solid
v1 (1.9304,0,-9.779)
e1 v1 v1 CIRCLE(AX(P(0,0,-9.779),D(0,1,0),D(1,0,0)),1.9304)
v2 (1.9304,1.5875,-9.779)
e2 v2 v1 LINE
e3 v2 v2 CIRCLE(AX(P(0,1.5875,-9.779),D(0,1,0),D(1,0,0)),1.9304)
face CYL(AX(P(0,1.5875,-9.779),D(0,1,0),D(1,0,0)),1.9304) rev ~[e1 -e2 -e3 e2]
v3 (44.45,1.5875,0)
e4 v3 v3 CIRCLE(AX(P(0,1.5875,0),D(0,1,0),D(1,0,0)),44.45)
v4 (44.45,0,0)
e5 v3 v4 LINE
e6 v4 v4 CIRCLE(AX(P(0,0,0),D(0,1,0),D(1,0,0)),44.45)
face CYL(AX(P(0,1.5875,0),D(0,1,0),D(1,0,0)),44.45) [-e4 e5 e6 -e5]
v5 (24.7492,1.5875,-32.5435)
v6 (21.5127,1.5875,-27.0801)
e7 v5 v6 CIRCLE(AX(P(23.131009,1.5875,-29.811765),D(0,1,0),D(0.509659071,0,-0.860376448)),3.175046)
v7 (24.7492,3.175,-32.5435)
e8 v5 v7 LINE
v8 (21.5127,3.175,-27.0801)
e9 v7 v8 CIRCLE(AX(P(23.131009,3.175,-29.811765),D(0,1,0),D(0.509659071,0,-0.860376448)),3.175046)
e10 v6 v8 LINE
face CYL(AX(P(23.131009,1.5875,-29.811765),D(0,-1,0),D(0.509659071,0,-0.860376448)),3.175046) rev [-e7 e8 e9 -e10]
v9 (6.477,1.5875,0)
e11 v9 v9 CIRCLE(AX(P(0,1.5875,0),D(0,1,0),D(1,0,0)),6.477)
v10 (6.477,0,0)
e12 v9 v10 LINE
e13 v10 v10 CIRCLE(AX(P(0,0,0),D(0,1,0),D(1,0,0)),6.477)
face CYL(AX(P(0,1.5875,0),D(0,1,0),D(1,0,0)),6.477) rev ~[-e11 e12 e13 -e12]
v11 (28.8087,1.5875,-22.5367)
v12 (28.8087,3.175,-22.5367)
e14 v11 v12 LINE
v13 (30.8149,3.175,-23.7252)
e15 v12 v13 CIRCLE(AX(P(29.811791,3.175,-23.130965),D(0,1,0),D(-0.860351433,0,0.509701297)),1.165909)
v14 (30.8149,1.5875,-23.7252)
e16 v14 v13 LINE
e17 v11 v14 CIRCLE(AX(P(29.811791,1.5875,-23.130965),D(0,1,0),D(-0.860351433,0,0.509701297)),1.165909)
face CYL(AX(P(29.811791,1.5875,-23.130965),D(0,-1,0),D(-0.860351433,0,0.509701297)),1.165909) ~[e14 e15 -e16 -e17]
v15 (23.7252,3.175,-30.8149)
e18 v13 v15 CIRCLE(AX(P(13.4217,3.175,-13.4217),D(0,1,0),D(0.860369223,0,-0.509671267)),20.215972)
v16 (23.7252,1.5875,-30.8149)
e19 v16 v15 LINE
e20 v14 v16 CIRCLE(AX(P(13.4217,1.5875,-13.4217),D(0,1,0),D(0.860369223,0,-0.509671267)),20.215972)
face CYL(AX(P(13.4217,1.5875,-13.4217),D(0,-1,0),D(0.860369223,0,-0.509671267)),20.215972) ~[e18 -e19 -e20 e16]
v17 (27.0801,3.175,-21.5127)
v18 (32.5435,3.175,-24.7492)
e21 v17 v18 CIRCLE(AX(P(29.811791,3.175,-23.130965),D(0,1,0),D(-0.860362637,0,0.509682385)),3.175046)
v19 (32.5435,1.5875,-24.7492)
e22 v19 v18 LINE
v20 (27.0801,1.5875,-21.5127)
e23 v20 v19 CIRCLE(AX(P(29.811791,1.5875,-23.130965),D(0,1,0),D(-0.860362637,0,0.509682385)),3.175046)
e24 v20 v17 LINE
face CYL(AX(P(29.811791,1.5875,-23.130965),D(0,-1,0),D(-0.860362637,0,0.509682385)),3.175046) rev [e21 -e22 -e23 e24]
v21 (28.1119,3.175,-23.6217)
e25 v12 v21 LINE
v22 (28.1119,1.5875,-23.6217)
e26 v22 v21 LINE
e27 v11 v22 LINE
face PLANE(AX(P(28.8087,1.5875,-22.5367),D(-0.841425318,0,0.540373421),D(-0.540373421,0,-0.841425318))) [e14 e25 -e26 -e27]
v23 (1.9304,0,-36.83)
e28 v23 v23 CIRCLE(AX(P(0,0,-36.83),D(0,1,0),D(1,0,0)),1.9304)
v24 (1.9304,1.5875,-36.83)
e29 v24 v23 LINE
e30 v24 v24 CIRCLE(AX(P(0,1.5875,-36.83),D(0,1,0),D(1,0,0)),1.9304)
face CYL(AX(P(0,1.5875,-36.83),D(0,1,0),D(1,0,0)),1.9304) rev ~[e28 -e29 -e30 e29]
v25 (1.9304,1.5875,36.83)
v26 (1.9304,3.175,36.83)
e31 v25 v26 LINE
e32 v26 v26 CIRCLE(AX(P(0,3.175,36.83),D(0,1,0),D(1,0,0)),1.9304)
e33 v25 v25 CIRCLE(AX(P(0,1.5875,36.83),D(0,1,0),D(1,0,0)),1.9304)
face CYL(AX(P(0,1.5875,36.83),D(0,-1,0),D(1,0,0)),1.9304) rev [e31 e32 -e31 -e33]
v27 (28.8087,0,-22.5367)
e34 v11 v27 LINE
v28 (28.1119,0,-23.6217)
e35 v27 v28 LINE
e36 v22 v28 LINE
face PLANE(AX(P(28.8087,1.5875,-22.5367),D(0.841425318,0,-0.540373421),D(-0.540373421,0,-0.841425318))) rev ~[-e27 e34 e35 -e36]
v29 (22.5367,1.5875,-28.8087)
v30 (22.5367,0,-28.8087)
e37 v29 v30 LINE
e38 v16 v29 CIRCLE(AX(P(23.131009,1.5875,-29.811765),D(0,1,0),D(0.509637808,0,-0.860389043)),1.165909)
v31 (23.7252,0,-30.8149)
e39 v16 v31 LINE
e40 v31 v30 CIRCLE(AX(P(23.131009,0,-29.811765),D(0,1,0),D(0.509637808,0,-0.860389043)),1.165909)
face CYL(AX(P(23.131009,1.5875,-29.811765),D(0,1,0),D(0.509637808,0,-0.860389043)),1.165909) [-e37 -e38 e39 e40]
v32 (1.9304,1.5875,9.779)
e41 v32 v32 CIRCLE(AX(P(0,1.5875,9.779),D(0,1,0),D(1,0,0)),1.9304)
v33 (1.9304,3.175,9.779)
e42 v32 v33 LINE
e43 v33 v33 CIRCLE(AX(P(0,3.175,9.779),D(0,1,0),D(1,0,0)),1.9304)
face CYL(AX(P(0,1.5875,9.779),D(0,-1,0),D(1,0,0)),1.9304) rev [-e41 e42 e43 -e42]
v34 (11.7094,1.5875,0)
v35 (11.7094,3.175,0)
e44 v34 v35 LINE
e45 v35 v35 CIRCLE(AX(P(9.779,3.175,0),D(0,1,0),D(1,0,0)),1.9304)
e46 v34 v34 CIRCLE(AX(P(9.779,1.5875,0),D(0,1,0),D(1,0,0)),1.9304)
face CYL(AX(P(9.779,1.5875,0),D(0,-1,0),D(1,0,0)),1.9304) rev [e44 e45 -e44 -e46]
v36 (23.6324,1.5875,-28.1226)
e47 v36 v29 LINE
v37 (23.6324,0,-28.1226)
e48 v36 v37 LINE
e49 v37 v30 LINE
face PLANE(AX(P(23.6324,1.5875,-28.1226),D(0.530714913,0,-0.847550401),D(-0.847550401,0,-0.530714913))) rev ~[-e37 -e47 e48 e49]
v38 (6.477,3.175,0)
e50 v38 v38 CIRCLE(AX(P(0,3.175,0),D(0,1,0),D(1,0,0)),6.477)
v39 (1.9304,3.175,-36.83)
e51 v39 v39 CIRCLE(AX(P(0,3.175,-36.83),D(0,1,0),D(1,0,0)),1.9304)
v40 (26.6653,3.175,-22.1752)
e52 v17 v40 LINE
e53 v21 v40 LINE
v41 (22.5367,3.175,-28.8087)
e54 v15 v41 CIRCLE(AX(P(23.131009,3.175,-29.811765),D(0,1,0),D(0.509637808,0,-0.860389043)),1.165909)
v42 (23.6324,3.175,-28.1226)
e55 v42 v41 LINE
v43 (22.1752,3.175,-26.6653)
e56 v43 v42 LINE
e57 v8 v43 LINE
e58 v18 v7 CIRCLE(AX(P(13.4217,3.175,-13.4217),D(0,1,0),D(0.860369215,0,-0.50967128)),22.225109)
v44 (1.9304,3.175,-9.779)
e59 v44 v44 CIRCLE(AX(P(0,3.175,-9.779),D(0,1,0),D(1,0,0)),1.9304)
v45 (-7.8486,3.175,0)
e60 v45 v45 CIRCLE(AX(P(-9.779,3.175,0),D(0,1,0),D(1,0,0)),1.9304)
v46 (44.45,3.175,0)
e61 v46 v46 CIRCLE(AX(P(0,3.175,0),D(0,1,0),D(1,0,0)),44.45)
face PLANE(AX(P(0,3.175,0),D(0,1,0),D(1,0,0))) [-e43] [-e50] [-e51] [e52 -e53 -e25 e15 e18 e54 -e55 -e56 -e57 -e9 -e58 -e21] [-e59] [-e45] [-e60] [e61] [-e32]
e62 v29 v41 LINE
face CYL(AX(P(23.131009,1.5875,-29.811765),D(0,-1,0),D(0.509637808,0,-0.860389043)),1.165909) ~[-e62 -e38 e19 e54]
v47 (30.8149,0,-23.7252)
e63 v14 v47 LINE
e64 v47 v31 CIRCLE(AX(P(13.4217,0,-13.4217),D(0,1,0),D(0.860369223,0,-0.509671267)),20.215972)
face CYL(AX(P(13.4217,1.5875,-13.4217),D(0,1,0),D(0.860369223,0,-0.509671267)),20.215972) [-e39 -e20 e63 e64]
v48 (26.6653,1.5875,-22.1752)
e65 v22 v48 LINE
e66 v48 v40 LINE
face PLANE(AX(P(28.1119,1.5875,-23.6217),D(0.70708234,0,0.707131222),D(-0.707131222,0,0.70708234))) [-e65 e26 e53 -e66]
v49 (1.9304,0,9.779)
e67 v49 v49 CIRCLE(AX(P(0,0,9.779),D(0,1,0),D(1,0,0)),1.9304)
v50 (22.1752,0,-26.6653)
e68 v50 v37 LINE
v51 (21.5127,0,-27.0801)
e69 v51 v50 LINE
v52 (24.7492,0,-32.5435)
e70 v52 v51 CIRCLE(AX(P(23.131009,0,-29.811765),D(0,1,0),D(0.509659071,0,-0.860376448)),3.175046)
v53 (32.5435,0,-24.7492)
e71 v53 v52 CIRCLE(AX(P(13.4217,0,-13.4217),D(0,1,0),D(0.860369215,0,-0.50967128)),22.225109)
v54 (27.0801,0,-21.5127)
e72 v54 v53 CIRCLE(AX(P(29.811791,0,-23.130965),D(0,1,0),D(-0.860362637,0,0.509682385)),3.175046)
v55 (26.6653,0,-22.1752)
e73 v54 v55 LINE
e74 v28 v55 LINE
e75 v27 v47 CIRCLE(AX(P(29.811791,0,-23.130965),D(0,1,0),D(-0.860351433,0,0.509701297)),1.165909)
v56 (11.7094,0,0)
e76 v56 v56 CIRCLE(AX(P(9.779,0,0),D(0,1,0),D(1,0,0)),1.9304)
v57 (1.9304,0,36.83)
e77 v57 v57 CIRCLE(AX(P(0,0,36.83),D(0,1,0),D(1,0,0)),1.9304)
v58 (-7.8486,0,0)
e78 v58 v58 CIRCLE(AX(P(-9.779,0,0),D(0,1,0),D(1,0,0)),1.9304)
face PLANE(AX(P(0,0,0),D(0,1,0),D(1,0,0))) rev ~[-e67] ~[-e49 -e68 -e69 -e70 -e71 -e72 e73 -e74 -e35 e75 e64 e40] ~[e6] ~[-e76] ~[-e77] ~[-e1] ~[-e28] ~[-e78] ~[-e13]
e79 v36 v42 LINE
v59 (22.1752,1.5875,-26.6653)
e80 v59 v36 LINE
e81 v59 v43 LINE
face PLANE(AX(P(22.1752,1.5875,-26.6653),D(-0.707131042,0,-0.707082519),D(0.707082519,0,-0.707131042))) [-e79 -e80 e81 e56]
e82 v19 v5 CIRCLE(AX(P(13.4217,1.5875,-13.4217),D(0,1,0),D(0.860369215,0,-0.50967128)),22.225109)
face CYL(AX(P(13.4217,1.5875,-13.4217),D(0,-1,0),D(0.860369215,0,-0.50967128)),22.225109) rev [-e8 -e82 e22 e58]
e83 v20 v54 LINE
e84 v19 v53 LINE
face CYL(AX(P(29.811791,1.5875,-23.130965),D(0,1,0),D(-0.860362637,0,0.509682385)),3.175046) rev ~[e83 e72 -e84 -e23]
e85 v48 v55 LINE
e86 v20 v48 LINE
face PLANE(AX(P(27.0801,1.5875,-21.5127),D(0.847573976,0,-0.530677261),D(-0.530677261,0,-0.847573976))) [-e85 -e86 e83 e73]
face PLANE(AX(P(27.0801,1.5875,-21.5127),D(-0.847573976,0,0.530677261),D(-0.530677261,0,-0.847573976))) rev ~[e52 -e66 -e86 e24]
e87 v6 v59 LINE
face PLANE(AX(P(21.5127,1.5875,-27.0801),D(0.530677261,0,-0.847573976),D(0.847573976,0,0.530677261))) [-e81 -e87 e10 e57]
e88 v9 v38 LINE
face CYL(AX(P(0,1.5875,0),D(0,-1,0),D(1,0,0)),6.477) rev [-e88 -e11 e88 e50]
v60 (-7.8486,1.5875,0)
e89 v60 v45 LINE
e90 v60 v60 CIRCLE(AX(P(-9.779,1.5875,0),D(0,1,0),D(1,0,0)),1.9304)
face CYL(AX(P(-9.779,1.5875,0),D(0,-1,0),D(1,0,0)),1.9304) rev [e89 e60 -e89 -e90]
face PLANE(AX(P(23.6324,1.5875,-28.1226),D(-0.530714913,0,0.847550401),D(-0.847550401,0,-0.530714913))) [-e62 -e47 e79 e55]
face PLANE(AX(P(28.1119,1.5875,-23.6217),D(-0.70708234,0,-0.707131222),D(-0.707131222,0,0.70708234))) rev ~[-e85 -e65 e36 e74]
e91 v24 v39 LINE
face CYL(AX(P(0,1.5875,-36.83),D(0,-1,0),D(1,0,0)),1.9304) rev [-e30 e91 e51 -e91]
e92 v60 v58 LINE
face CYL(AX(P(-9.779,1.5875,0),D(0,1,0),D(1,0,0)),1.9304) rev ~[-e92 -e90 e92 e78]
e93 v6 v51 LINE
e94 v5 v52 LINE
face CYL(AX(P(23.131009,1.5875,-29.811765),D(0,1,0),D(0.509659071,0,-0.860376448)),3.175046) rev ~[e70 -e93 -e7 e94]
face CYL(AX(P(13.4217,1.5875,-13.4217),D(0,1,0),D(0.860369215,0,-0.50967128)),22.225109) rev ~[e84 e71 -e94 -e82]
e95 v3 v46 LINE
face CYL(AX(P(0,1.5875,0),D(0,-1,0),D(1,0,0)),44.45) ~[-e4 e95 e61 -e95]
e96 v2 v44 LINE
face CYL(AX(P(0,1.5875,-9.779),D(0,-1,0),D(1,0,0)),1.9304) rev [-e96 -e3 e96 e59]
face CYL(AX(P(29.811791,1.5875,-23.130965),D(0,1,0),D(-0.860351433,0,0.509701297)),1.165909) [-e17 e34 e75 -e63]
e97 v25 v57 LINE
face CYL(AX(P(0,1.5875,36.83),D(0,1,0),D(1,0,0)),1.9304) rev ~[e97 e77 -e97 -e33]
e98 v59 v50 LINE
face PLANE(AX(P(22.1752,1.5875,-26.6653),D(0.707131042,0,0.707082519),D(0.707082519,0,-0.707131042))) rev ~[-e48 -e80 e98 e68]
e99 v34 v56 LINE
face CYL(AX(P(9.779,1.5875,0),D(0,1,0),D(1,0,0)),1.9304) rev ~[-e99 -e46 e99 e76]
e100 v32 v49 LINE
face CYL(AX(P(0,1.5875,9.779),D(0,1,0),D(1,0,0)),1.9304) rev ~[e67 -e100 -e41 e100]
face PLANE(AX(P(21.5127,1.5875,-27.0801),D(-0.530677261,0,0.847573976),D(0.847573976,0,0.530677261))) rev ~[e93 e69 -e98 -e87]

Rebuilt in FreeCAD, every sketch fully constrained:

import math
import FreeCAD as App
import Part
import Sketcher

V = App.Vector
Q = App.Units.Quantity

doc = App.newDocument("Part")
body = doc.addObject("PartDesign::Body", "Body")

# Sketch on XZ plane
sketch1 = doc.addObject("Sketcher::SketchObject", "Sketch")
body.addObject(sketch1)
sketch1.AttachmentSupport = (doc.XZ_Plane, [""])
sketch1.MapMode = "FlatFace"
sketch1.AttachmentOffset = App.Placement(V(0, 0, -0.0625 * 25.4), App.Rotation())
sketch1.addGeometry([
    Part.Circle(V(0, 0, 0), V(0, 0, 1), 44.45),  # 0
    Part.Circle(V(0, 36.83, 0), V(0, 0, 1), 1.9304),  # 1
    Part.Circle(V(0, 9.779, 0), V(0, 0, 1), 1.9304),  # 2
    Part.Circle(V(-9.779, 0, 0), V(0, 0, 1), 1.9304),  # 3
    Part.Circle(V(0, 0, 0), V(0, 0, 1), 6.477),  # 4
    Part.Circle(V(9.779, 0, 0), V(0, 0, 1), 1.9304),  # 5
    Part.Circle(V(0, -9.779, 0), V(0, 0, 1), 1.9304),  # 6
    Part.Circle(V(0, -36.83, 0), V(0, 0, 1), 1.9304),  # 7
    Part.LineSegment(V(28.1119, -23.6217, 0), V(28.8087, -22.5367, 0)),  # 8
    Part.ArcOfCircle(Part.Circle(V(29.8118, -23.131, 0), V(0, 0, 1), 1.165934), math.radians(-30.64096), math.radians(149.354812)),  # 9
    Part.ArcOfCircle(Part.Circle(V(13.4217, -13.4217, 0), V(0, 0, 1), 20.215972), math.radians(-59.358064), math.radians(-30.641936)),  # 10
    Part.ArcOfCircle(Part.Circle(V(23.131, -29.8118, 0), V(0, 0, 1), 1.165883), math.radians(120.645188), math.radians(300.64096)),  # 11
    Part.LineSegment(V(22.5367, -28.8087, 0), V(23.6324, -28.1226, 0)),  # 12
    Part.LineSegment(V(23.6324, -28.1226, 0), V(22.1752, -26.6653, 0)),  # 13
    Part.LineSegment(V(22.1752, -26.6653, 0), V(21.5127, -27.0801, 0)),  # 14
    Part.ArcOfCircle(Part.Circle(V(23.131, -29.8118, 0), V(0, 0, 1), 3.175021), math.radians(120.643136), math.radians(300.641583)),  # 15
    Part.ArcOfCircle(Part.Circle(V(13.4217, -13.4217, 0), V(0, 0, 1), 22.225109), math.radians(-59.358064), math.radians(-30.641936)),  # 16
    Part.ArcOfCircle(Part.Circle(V(29.8118, -23.131, 0), V(0, 0, 1), 3.175072), math.radians(-30.641583), math.radians(149.356864)),  # 17
    Part.LineSegment(V(27.0801, -21.5127, 0), V(26.6653, -22.1752, 0)),  # 18
    Part.LineSegment(V(26.6653, -22.1752, 0), V(28.1119, -23.6217, 0)),  # 19
], False)
sketch1.addConstraint([
    Sketcher.Constraint("Coincident", 8, 2, 9, 2),
    Sketcher.Constraint("Coincident", 9, 1, 10, 2),
    Sketcher.Constraint("Coincident", 10, 1, 11, 2),
    Sketcher.Constraint("Coincident", 11, 1, 12, 1),
    Sketcher.Constraint("Coincident", 12, 2, 13, 1),
    Sketcher.Constraint("Coincident", 13, 2, 14, 1),
    Sketcher.Constraint("Coincident", 14, 2, 15, 1),
    Sketcher.Constraint("Coincident", 15, 2, 16, 1),
    Sketcher.Constraint("Coincident", 16, 2, 17, 1),
    Sketcher.Constraint("Coincident", 17, 2, 18, 1),
    Sketcher.Constraint("Coincident", 18, 2, 19, 1),
    Sketcher.Constraint("Coincident", 19, 2, 8, 1),
    Sketcher.Constraint("Coincident", 0, 3, -1, 1),
    Sketcher.Constraint("Coincident", 4, 3, -1, 1),
    Sketcher.Constraint("Coincident", 15, 3, 11, 3),
    Sketcher.Constraint("Coincident", 16, 3, 10, 3),
    Sketcher.Constraint("Coincident", 17, 3, 9, 3),
    Sketcher.Constraint("PointOnObject", 1, 3, -2),
    Sketcher.Constraint("PointOnObject", 2, 3, -2),
    Sketcher.Constraint("PointOnObject", 3, 3, -1),
    Sketcher.Constraint("PointOnObject", 5, 3, -1),
    Sketcher.Constraint("PointOnObject", 6, 3, -2),
    Sketcher.Constraint("PointOnObject", 7, 3, -2),
    Sketcher.Constraint("Diameter", 0, Q("3.5 in")),
    Sketcher.Constraint("Diameter", 4, Q("0.51 in")),
    Sketcher.Constraint("Diameter", 1, Q("0.152 in")),
    Sketcher.Constraint("Diameter", 2, Q("0.152 in")),
    Sketcher.Constraint("Diameter", 3, Q("0.152 in")),
    Sketcher.Constraint("Diameter", 5, Q("0.152 in")),
    Sketcher.Constraint("Diameter", 6, Q("0.152 in")),
    Sketcher.Constraint("Diameter", 7, Q("0.152 in")),
    Sketcher.Constraint("DistanceY", -1, 1, 1, 3, Q("1.45 in")),
    Sketcher.Constraint("DistanceY", 7, 3, -1, 1, Q("1.45 in")),
    Sketcher.Constraint("Radius", 15, Q("0.125 in")),
    Sketcher.Constraint("Radius", 16, Q("0.875 in")),
    Sketcher.Constraint("Radius", 17, Q("0.125 in")),
    Sketcher.Constraint("Radius", 9, Q("0.0459 in")),
    Sketcher.Constraint("DistanceY", 19, 2, -1, 1, Q("0.93 in")),
    Sketcher.Constraint("DistanceX", 3, 3, 5, 3, Q("0.77 in")),
    Sketcher.Constraint("DistanceY", 6, 3, 2, 3, Q("0.77 in")),
    Sketcher.Constraint("DistanceY", -1, 1, 2, 3, Q("0.385 in")),
    Sketcher.Constraint("DistanceX", 3, 3, -1, 1, Q("0.385 in")),
    Sketcher.Constraint("DistanceY", 10, 1, 12, 2, Q("0.106 in")),
    Sketcher.Constraint("Distance", 12, Q("0.0509 in")),
    Sketcher.Constraint("DistanceX", -1, 1, 9, 3, Q("1.1737 in")),
    Sketcher.Constraint("DistanceY", 11, 3, -1, 1, Q("1.1737 in")),
    Sketcher.Constraint("DistanceX", -1, 1, 8, 2, Q("1.1342 in")),
    Sketcher.Constraint("DistanceY", 11, 1, -1, 1, Q("1.1342 in")),
    Sketcher.Constraint("DistanceX", -1, 1, 12, 2, Q("0.9304 in")),
    Sketcher.Constraint("DistanceY", 12, 2, -1, 1, Q("1.1072 in")),
    Sketcher.Constraint("DistanceX", 9, 3, 9, 1, Q("0.0395 in")),
    Sketcher.Constraint("DistanceX", 11, 3, 15, 2, Q("0.0637 in")),
    Sketcher.Constraint("DistanceY", 16, 2, 9, 3, Q("0.0637 in")),
    Sketcher.Constraint("DistanceY", 12, 2, 16, 2, Q("0.1328 in")),
    Sketcher.Constraint("DistanceY", 9, 1, 17, 2, Q("0.0871 in")),
    Sketcher.Constraint("Distance", 8, Q("1.2895 mm")),
    Sketcher.Constraint("Distance", 13, Q("2.0609 mm")),
    Sketcher.Constraint("Distance", 14, Q("0.7816 mm")),
    Sketcher.Constraint("Distance", 18, Q("0.7816 mm")),
    Sketcher.Constraint("Distance", 19, Q("2.0457 mm")),
    Sketcher.Constraint("DistanceX", -1, 1, 13, 2, Q("22.1752 mm")),
])
pad1 = doc.addObject("PartDesign::Pad", "Pad")
body.addObject(pad1)
pad1.Profile = sketch1
pad1.Length = Q("0.125 in")
pad1.Midplane = True

doc.recompute()
